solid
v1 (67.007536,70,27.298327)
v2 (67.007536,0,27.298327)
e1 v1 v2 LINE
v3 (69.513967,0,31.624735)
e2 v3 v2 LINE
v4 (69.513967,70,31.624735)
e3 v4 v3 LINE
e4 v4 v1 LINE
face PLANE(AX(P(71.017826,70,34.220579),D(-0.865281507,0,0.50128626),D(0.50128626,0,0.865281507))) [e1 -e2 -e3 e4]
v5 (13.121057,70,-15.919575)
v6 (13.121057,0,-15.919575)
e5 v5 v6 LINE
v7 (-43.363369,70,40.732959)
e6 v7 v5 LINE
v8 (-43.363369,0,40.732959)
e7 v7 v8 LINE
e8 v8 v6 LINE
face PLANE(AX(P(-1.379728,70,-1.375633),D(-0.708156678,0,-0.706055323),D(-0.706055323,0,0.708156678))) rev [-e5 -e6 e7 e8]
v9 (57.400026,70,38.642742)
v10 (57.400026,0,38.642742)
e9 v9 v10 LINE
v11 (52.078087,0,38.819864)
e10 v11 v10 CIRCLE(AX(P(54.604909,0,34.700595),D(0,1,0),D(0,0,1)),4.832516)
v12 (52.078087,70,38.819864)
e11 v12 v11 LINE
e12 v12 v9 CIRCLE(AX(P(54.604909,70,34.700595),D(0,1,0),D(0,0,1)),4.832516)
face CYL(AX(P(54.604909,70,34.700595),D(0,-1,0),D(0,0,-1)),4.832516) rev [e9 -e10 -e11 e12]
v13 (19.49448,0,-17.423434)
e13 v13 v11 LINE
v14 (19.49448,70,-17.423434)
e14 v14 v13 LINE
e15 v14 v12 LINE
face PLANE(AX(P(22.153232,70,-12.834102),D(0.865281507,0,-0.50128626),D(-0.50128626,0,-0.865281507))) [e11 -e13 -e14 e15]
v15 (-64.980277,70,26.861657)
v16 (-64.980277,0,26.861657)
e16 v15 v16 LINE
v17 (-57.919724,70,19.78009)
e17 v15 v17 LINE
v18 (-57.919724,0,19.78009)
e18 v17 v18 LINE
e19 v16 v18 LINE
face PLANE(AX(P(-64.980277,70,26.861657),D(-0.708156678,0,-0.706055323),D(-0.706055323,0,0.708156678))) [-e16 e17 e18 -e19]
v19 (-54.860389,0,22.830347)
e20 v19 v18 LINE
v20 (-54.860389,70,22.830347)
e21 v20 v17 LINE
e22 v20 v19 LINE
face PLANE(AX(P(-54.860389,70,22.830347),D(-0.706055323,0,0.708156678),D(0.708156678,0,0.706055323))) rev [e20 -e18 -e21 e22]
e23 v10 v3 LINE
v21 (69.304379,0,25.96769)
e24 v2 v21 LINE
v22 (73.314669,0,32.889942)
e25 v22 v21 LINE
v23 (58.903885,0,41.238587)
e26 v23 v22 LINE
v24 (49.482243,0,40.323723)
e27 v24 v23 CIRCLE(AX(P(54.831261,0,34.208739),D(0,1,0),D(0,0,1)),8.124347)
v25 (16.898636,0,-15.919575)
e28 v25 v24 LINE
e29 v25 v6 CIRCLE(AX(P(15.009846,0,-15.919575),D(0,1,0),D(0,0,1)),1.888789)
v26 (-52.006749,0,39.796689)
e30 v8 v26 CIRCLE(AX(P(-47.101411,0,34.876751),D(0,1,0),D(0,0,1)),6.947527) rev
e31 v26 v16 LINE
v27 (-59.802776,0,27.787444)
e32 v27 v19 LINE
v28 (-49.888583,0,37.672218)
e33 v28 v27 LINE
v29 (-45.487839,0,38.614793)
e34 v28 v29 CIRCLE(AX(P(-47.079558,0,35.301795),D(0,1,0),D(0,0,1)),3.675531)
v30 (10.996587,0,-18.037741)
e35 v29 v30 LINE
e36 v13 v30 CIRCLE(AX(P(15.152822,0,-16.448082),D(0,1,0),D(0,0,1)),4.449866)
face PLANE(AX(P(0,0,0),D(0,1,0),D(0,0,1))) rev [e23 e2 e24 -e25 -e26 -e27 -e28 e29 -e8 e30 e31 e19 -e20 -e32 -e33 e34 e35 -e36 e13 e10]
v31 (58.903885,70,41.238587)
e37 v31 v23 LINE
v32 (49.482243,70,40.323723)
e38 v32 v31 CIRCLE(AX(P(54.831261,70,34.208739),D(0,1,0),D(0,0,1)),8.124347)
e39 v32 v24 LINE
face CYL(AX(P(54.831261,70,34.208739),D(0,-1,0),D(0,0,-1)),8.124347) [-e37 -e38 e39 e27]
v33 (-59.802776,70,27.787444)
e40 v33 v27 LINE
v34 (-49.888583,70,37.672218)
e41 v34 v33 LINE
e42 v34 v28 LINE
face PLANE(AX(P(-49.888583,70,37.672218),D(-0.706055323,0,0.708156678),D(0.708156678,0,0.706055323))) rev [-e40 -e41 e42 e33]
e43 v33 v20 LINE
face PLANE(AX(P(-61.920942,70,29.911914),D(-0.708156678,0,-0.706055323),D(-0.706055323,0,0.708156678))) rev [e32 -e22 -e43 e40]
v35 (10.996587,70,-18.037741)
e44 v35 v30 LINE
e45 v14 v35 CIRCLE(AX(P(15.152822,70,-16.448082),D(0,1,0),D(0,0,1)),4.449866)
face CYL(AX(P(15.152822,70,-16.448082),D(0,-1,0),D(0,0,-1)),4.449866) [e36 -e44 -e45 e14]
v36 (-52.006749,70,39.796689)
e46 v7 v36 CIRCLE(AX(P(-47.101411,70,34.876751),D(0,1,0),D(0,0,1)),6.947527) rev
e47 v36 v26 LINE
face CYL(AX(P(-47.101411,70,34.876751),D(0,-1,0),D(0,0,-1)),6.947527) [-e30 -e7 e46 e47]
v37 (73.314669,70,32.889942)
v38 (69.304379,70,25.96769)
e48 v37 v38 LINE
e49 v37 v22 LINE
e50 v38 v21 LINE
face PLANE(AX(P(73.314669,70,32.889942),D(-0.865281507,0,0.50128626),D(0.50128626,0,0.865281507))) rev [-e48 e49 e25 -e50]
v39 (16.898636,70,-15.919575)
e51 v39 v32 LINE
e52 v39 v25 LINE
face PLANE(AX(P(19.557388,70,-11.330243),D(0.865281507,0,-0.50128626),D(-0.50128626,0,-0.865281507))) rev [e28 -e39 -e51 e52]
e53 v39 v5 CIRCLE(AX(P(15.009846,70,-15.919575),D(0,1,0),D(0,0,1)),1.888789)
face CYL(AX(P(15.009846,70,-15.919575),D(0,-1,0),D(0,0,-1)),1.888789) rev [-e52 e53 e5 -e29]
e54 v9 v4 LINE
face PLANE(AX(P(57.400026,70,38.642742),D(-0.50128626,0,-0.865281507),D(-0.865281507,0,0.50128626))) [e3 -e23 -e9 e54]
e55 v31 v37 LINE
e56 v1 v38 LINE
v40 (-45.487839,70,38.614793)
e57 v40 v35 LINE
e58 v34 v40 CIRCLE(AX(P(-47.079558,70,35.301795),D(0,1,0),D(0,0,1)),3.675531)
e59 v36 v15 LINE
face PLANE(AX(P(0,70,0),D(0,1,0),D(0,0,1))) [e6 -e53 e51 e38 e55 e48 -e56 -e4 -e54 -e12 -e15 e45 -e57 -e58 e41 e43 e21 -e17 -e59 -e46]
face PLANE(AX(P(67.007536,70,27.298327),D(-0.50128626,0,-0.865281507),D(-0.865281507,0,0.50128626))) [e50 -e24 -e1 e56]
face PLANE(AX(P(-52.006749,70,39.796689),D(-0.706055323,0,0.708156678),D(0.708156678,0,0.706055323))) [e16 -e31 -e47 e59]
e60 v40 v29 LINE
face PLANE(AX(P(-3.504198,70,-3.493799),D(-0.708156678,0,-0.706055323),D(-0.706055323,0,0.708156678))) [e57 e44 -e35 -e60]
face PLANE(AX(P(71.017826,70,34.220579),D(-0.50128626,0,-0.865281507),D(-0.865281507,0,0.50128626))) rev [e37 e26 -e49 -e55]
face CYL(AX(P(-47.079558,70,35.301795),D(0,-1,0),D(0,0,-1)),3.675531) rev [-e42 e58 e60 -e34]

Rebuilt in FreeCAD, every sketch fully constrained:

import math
import FreeCAD as App
import Part
import Sketcher
from FreeCAD import Vector

doc = App.newDocument("Part")
body = doc.addObject("PartDesign::Body", "Body")

# Sketch on XZ plane
sketch1 = body.newObject("Sketcher::SketchObject", "Sketch")
sketch1.AttachmentSupport = (doc.getObject("XZ_Plane"), [""])
sketch1.MapMode = "FlatFace"
sketch1.addGeometry(Part.LineSegment(Vector(10.996587, -18.037741, 0), Vector(-45.487839, 38.614793, 0)), False)
sketch1.addGeometry(Part.ArcOfCircle(Part.Circle(Vector(-47.079558, 35.301795, 0), Vector(0, 0, 1), 3.675531), math.radians(64.338191), math.radians(139.840315)), False)
sketch1.addGeometry(Part.LineSegment(Vector(-49.888583, 37.672218, 0), Vector(-59.802776, 27.787444, 0)), False)
sketch1.addGeometry(Part.LineSegment(Vector(-59.802776, 27.787444, 0), Vector(-54.860389, 22.830347, 0)), False)
sketch1.addGeometry(Part.LineSegment(Vector(-54.860389, 22.830347, 0), Vector(-57.919724, 19.78009, 0)), False)
sketch1.addGeometry(Part.LineSegment(Vector(-57.919724, 19.78009, 0), Vector(-64.980277, 26.861657, 0)), False)
sketch1.addGeometry(Part.LineSegment(Vector(-64.980277, 26.861657, 0), Vector(-52.006749, 39.796689, 0)), False)
sketch1.addGeometry(Part.ArcOfCircle(Part.Circle(Vector(-47.101411, 34.876751, 0), Vector(0, 0, 1), 6.947527), math.radians(57.44974), math.radians(134.914865)), False)
sketch1.addGeometry(Part.LineSegment(Vector(-43.363369, 40.732959, 0), Vector(13.121057, -15.919575, 0)), False)
sketch1.addGeometry(Part.ArcOfCircle(Part.Circle(Vector(15.009846, -15.919575, 0), Vector(0, 0, 1), 1.888789), math.radians(180), math.radians(360)), False)
sketch1.addGeometry(Part.LineSegment(Vector(16.898636, -15.919575, 0), Vector(49.482243, 40.323723, 0)), False)
sketch1.addGeometry(Part.ArcOfCircle(Part.Circle(Vector(54.831261, 34.208739, 0), Vector(0, 0, 1), 8.124347), math.radians(59.914865), math.radians(131.177476)), False)
sketch1.addGeometry(Part.LineSegment(Vector(58.903885, 41.238587, 0), Vector(73.314669, 32.889942, 0)), False)
sketch1.addGeometry(Part.LineSegment(Vector(73.314669, 32.889942, 0), Vector(69.304379, 25.96769, 0)), False)
sketch1.addGeometry(Part.LineSegment(Vector(69.304379, 25.96769, 0), Vector(67.007536, 27.298327, 0)), False)
sketch1.addGeometry(Part.LineSegment(Vector(67.007536, 27.298327, 0), Vector(69.513967, 31.624735, 0)), False)
sketch1.addGeometry(Part.LineSegment(Vector(69.513967, 31.624735, 0), Vector(57.400026, 38.642742, 0)), False)
sketch1.addGeometry(Part.ArcOfCircle(Part.Circle(Vector(54.604909, 34.700595, 0), Vector(0, 0, 1), 4.832516), math.radians(54.662059), math.radians(121.525581)), False)
sketch1.addGeometry(Part.LineSegment(Vector(52.078087, 38.819864, 0), Vector(19.49448, -17.423434, 0)), False)
sketch1.addGeometry(Part.ArcOfCircle(Part.Circle(Vector(15.152822, -16.448082, 0), Vector(0, 0, 1), 4.449866), math.radians(-159.069354), math.radians(-12.66128)), False)
sketch1.addConstraint(Sketcher.Constraint("Coincident", 0, 2, 1, 1))
sketch1.addConstraint(Sketcher.Constraint("Coincident", 1, 2, 2, 1))
sketch1.addConstraint(Sketcher.Constraint("Coincident", 2, 2, 3, 1))
sketch1.addConstraint(Sketcher.Constraint("Coincident", 3, 2, 4, 1))
sketch1.addConstraint(Sketcher.Constraint("Coincident", 4, 2, 5, 1))
sketch1.addConstraint(Sketcher.Constraint("Coincident", 5, 2, 6, 1))
sketch1.addConstraint(Sketcher.Constraint("Coincident", 6, 2, 7, 2))
sketch1.addConstraint(Sketcher.Constraint("Coincident", 7, 1, 8, 1))
sketch1.addConstraint(Sketcher.Constraint("Coincident", 8, 2, 9, 1))
sketch1.addConstraint(Sketcher.Constraint("Coincident", 9, 2, 10, 1))
sketch1.addConstraint(Sketcher.Constraint("Coincident", 10, 2, 11, 2))
sketch1.addConstraint(Sketcher.Constraint("Coincident", 11, 1, 12, 1))
sketch1.addConstraint(Sketcher.Constraint("Coincident", 12, 2, 13, 1))
sketch1.addConstraint(Sketcher.Constraint("Coincident", 13, 2, 14, 1))
sketch1.addConstraint(Sketcher.Constraint("Coincident", 14, 2, 15, 1))
sketch1.addConstraint(Sketcher.Constraint("Coincident", 15, 2, 16, 1))
sketch1.addConstraint(Sketcher.Constraint("Coincident", 16, 2, 17, 1))
sketch1.addConstraint(Sketcher.Constraint("Coincident", 17, 2, 18, 1))
sketch1.addConstraint(Sketcher.Constraint("Coincident", 18, 2, 19, 2))
sketch1.addConstraint(Sketcher.Constraint("Coincident", 19, 1, 0, 1))
sketch1.addConstraint(Sketcher.Constraint("Distance", 0, 80.0))
sketch1.addConstraint(Sketcher.Constraint("Distance", 2, 14.0))
sketch1.addConstraint(Sketcher.Constraint("Distance", 3, 7.0))
sketch1.addConstraint(Sketcher.Constraint("Distance", 5, 10.0))
sketch1.addConstraint(Sketcher.Constraint("Distance", 8, 80.0))
sketch1.addConstraint(Sketcher.Constraint("Distance", 10, 65.0))
sketch1.addConstraint(Sketcher.Constraint("Distance", 13, 8.0))
sketch1.addConstraint(Sketcher.Constraint("Distance", 15, 5.0))
sketch1.addConstraint(Sketcher.Constraint("Distance", 16, 14.0))
sketch1.addConstraint(Sketcher.Constraint("Distance", 18, 65.0))
sketch1.addConstraint(Sketcher.Constraint("Radius", 1, 3.675531))
sketch1.addConstraint(Sketcher.Constraint("Radius", 9, 1.888789))
sketch1.addConstraint(Sketcher.Constraint("Radius", 7, 6.947527))
sketch1.addConstraint(Sketcher.Constraint("Radius", 11, 8.124347))
sketch1.addConstraint(Sketcher.Constraint("Radius", 17, 4.832516))
sketch1.addConstraint(Sketcher.Constraint("Radius", 19, 4.449866))
sketch1.addConstraint(Sketcher.Constraint("DistanceY", 1, 3, 0, 2, 3.312998))
sketch1.addConstraint(Sketcher.Constraint("DistanceY", 17, 3, 1, 3, 0.6012))
sketch1.addConstraint(Sketcher.Constraint("DistanceY", 19, 3, 1, 2, 54.1203))
sketch1.addConstraint(Sketcher.Constraint("DistanceX", 5, 2, 2, 2, 5.177501))
sketch1.addConstraint(Sketcher.Constraint("DistanceX", 15, 2, 12, 2, 3.800702))
sketch1.addConstraint(Sketcher.Constraint("Distance", 4, 4.320139))
sketch1.addConstraint(Sketcher.Constraint("Distance", 6, 18.320139))
sketch1.addConstraint(Sketcher.Constraint("DistanceX", 1, 3, -1, 1, 47.079558))
sketch1.addConstraint(Sketcher.Constraint("DistanceX", 7, 3, -1, 1, 47.101411))
sketch1.addConstraint(Sketcher.Constraint("DistanceY", -1, 1, 7, 3, 34.876751))
sketch1.addConstraint(Sketcher.Constraint("DistanceX", -1, 1, 11, 3, 54.831261))
sketch1.addConstraint(Sketcher.Constraint("DistanceY", -1, 1, 11, 3, 34.208739))
sketch1.addConstraint(Sketcher.Constraint("DistanceX", -1, 1, 17, 3, 54.604909))
sketch1.addConstraint(Sketcher.Constraint("DistanceY", 19, 3, -1, 1, 16.448082))
sketch1.addConstraint(Sketcher.Constraint("DistanceX", 3, 2, -1, 1, 54.860389))
sketch1.addConstraint(Sketcher.Constraint("DistanceY", -1, 1, 4, 2, 19.78009))
sketch1.addConstraint(Sketcher.Constraint("DistanceX", 6, 2, -1, 1, 52.006749))
sketch1.addConstraint(Sketcher.Constraint("DistanceX", 7, 1, -1, 1, 43.363369))
sketch1.addConstraint(Sketcher.Constraint("DistanceX", -1, 1, 12, 2, 73.314669))
sketch1.addConstraint(Sketcher.Constraint("DistanceY", -1, 1, 12, 2, 32.889942))
sketch1.addConstraint(Sketcher.Constraint("DistanceX", -1, 1, 13, 2, 69.304379))
sketch1.addConstraint(Sketcher.Constraint("DistanceX", -1, 1, 18, 2, 19.49448))
sketch1.addConstraint(Sketcher.Constraint("DistanceY", 19, 1, -1, 1, 18.037741))
sketch1.addConstraint(Sketcher.Constraint("DistanceY", 9, 3, 1, 3, 51.22137))
sketch1.addConstraint(Sketcher.Constraint("DistanceX", 19, 3, 11, 3, 39.678439))
sketch1.addConstraint(Sketcher.Constraint("DistanceX", 1, 2, 9, 3, 64.898429))
sketch1.addConstraint(Sketcher.Constraint("DistanceY", 9, 2, 17, 3, 50.62017))
sketch1.addConstraint(Sketcher.Constraint("DistanceX", 9, 2, 11, 1, 42.005249))
sketch1.addConstraint(Sketcher.Constraint("DistanceX", 11, 1, 14, 2, 8.103651))
sketch1.addConstraint(Sketcher.Constraint("DistanceY", 14, 2, 11, 1, 13.94026))
pad1 = body.newObject("PartDesign::Pad", "Pad")
pad1.Profile = sketch1
pad1.Length = 70
pad1.Reversed = True

doc.recompute()
